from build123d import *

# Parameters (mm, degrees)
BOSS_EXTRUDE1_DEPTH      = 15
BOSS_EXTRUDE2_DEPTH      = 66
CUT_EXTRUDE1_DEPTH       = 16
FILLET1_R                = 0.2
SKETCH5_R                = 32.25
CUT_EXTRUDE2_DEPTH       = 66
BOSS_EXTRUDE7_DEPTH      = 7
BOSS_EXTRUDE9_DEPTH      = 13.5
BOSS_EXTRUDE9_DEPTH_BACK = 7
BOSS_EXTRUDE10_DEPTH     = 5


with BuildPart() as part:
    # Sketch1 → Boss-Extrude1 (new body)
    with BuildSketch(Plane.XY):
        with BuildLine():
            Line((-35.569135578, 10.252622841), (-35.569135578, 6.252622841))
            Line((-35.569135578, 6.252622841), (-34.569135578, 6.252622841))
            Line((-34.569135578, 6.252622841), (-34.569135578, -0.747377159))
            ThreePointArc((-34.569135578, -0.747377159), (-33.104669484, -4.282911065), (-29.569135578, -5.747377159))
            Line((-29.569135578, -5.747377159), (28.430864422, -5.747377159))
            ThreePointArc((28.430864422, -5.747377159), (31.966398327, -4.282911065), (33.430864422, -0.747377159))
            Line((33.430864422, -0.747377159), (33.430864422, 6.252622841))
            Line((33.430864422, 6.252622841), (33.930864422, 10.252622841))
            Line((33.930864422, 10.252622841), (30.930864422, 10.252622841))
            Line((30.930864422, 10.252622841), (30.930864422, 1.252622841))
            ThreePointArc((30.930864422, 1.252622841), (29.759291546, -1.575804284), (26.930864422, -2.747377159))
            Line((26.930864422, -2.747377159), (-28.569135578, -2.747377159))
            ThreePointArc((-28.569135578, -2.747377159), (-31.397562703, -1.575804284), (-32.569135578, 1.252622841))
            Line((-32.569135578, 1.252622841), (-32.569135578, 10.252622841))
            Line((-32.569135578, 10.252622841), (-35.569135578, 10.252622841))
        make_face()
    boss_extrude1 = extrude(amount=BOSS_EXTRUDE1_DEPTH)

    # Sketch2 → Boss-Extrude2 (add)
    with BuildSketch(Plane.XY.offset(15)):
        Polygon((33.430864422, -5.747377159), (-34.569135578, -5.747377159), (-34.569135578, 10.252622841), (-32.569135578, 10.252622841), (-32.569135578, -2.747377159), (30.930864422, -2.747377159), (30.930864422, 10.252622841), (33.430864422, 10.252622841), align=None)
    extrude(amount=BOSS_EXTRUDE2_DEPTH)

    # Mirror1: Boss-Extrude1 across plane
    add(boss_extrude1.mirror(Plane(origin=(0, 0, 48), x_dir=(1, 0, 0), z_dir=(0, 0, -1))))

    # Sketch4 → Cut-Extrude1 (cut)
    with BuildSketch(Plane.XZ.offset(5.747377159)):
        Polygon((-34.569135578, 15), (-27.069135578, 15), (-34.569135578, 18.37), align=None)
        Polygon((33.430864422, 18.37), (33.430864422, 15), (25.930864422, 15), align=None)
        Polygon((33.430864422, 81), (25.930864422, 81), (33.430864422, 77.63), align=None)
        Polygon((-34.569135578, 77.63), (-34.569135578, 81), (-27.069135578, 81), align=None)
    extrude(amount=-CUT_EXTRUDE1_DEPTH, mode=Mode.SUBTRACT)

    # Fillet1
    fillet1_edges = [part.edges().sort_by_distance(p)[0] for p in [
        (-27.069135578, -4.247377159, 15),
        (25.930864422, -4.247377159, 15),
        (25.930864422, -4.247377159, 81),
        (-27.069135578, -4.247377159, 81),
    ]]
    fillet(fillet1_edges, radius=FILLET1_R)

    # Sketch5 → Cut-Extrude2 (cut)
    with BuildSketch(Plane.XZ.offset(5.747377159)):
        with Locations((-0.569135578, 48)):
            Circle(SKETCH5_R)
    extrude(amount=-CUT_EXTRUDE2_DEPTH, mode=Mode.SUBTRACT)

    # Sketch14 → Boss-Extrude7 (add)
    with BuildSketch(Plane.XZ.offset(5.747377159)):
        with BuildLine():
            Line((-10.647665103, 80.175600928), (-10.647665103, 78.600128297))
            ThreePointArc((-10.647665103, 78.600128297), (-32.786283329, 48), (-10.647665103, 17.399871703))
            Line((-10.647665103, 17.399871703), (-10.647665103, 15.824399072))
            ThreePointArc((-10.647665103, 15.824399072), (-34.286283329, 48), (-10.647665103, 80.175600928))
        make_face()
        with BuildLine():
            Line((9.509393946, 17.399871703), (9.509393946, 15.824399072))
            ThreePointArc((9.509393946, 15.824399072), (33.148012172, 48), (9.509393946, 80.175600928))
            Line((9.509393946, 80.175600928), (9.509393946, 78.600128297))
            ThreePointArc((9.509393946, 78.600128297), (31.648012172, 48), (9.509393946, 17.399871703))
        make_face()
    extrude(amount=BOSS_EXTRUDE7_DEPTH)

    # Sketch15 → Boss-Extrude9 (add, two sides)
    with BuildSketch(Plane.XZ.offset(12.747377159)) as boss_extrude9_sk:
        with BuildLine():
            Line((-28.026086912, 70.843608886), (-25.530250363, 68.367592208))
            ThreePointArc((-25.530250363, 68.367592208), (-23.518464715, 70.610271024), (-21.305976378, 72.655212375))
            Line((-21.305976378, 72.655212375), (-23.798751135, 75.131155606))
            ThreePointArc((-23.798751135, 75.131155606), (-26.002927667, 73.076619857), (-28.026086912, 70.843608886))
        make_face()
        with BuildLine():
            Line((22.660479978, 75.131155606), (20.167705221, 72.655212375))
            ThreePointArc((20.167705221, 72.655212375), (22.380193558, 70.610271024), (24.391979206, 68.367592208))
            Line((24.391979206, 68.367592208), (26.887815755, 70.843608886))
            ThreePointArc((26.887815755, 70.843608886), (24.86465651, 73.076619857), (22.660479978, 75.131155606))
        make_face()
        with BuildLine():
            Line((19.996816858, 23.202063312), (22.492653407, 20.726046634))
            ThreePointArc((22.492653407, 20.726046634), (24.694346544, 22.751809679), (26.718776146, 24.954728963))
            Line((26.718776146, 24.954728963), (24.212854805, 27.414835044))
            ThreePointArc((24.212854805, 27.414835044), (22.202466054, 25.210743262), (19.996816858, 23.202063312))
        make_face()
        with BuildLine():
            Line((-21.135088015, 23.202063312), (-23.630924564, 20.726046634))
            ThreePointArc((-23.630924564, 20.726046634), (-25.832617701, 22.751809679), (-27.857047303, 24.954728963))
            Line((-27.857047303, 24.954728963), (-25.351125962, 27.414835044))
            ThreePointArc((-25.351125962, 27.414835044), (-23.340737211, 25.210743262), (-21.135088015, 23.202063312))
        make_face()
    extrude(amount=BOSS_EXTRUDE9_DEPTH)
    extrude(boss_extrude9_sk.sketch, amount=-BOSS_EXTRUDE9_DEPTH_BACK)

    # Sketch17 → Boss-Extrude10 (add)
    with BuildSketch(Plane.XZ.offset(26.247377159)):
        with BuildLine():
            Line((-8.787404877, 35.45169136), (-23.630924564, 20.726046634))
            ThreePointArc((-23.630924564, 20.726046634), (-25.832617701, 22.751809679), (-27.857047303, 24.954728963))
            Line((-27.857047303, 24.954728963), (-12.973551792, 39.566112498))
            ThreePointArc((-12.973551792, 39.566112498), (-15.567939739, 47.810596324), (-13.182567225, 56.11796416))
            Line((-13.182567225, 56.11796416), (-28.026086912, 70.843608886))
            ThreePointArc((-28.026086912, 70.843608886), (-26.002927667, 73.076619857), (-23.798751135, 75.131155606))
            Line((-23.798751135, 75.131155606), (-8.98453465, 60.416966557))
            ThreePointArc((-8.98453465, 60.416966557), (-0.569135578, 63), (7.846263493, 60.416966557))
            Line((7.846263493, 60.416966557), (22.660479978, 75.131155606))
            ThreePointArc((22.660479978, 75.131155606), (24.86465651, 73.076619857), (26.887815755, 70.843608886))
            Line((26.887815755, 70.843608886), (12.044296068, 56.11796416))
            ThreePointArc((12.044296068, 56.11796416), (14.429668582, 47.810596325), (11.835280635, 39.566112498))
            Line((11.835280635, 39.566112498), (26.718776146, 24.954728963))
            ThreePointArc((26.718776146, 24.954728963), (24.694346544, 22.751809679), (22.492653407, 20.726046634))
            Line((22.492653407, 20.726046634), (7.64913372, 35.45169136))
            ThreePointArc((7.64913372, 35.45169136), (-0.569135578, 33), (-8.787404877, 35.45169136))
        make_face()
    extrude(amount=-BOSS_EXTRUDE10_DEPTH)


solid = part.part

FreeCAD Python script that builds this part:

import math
import FreeCAD as App
import Part
import Sketcher
from FreeCAD import Vector
Q = App.Units.Quantity


def edges_at(feature, points):
    """Names of the edges that pass closest to the given points."""
    edges = feature.Shape.Edges
    near = lambda p: min(range(len(edges)), key=lambda i: edges[i].distToShape(Part.Vertex(*p))[0])
    return sorted({f"Edge{near(p) + 1}" for p in points})


def add_polygon(sketch, points):
    """Adds a closed chain of lines whose ends are joined by coincident constraints."""
    first, n = sketch.GeometryCount, len(points)
    for a, b in zip(points, points[1:] + points[:1]):
        sketch.addGeometry(Part.LineSegment(App.Vector(*a, 0), App.Vector(*b, 0)), False)
    for i in range(n):
        sketch.addConstraint(Sketcher.Constraint("Coincident", first + i, 2, first + (i + 1) % n, 1))

doc = App.newDocument("Part")
body = doc.addObject("PartDesign::Body", "Body")

sketch1 = body.newObject("Sketcher::SketchObject", "Sketch")
sketch1.AttachmentSupport = (doc.getObject("XY_Plane"), [""])
sketch1.MapMode = "FlatFace"
sketch1.addGeometry(Part.LineSegment(Vector(-35.6, 10.3, 0), Vector(-35.6, 6.3, 0)), False)
sketch1.addGeometry(Part.LineSegment(Vector(-35.6, 6.3, 0), Vector(-34.6, 6.3, 0)), False)
sketch1.addGeometry(Part.LineSegment(Vector(-34.6, 6.3, 0), Vector(-34.6, -0.7, 0)), False)
sketch1.addGeometry(Part.ArcOfCircle(Part.Circle(Vector(-29.6, -0.7, 0), Vector(0, 0, 1), 5), math.radians(180), math.radians(270)), False)
sketch1.addGeometry(Part.LineSegment(Vector(-29.6, -5.7, 0), Vector(28.4, -5.7, 0)), False)
sketch1.addGeometry(Part.ArcOfCircle(Part.Circle(Vector(28.4, -0.7, 0), Vector(0, 0, 1), 5), math.radians(-90), math.radians(0)), False)
sketch1.addGeometry(Part.LineSegment(Vector(33.4, -0.7, 0), Vector(33.4, 6.3, 0)), False)
sketch1.addGeometry(Part.LineSegment(Vector(33.4, 6.3, 0), Vector(33.9, 10.3, 0)), False)
sketch1.addGeometry(Part.LineSegment(Vector(33.9, 10.3, 0), Vector(30.9, 10.3, 0)), False)
sketch1.addGeometry(Part.LineSegment(Vector(30.9, 10.3, 0), Vector(30.9, 1.3, 0)), False)
sketch1.addGeometry(Part.ArcOfCircle(Part.Circle(Vector(26.9, 1.3, 0), Vector(0, 0, 1), 4), math.radians(-90), math.radians(0)), False)
sketch1.addGeometry(Part.LineSegment(Vector(26.9, -2.7, 0), Vector(-28.6, -2.7, 0)), False)
sketch1.addGeometry(Part.ArcOfCircle(Part.Circle(Vector(-28.6, 1.3, 0), Vector(0, 0, 1), 4), math.radians(180), math.radians(270)), False)
sketch1.addGeometry(Part.LineSegment(Vector(-32.6, 1.3, 0), Vector(-32.6, 10.3, 0)), False)
sketch1.addGeometry(Part.LineSegment(Vector(-32.6, 10.3, 0), Vector(-35.6, 10.3, 0)), False)
sketch1.addConstraint(Sketcher.Constraint("Coincident", 0, 2, 1, 1))
sketch1.addConstraint(Sketcher.Constraint("Coincident", 1, 2, 2, 1))
sketch1.addConstraint(Sketcher.Constraint("Tangent", 2, 2, 3, 1))
sketch1.addConstraint(Sketcher.Constraint("Tangent", 3, 2, 4, 1))
sketch1.addConstraint(Sketcher.Constraint("Tangent", 4, 2, 5, 1))
sketch1.addConstraint(Sketcher.Constraint("Tangent", 5, 2, 6, 1))
sketch1.addConstraint(Sketcher.Constraint("Coincident", 6, 2, 7, 1))
sketch1.addConstraint(Sketcher.Constraint("Coincident", 7, 2, 8, 1))
sketch1.addConstraint(Sketcher.Constraint("Coincident", 8, 2, 9, 1))
sketch1.addConstraint(Sketcher.Constraint("Tangent", 9, 2, 10, 2))
sketch1.addConstraint(Sketcher.Constraint("Tangent", 10, 1, 11, 1))
sketch1.addConstraint(Sketcher.Constraint("Tangent", 11, 2, 12, 2))
sketch1.addConstraint(Sketcher.Constraint("Tangent", 12, 1, 13, 1))
sketch1.addConstraint(Sketcher.Constraint("Coincident", 13, 2, 14, 1))
sketch1.addConstraint(Sketcher.Constraint("Coincident", 14, 2, 0, 1))
sketch1.addConstraint(Sketcher.Constraint("Vertical", 0))
sketch1.addConstraint(Sketcher.Constraint("Horizontal", 1))
sketch1.addConstraint(Sketcher.Constraint("Vertical", 2))
sketch1.addConstraint(Sketcher.Constraint("Horizontal", 4))
sketch1.addConstraint(Sketcher.Constraint("Vertical", 6))
sketch1.addConstraint(Sketcher.Constraint("Horizontal", 8))
sketch1.addConstraint(Sketcher.Constraint("Vertical", 9))
sketch1.addConstraint(Sketcher.Constraint("Horizontal", 11))
sketch1.addConstraint(Sketcher.Constraint("Vertical", 13))
sketch1.addConstraint(Sketcher.Constraint("Horizontal", 14))
sketch1.addConstraint(Sketcher.Constraint("Equal", 3, 5))
sketch1.addConstraint(Sketcher.Constraint("Equal", 10, 12))
sketch1.addConstraint(Sketcher.Constraint("Horizontal", 1, 2, 6, 2))
sketch1.addConstraint(Sketcher.Constraint("Horizontal", 8, 2, 13, 2))
sketch1.addConstraint(Sketcher.Constraint("Equal", 8, 14))
sketch1.addConstraint(Sketcher.Constraint("Radius", 3, Q("5 mm")))
sketch1.addConstraint(Sketcher.Constraint("Radius", 10, Q("4 mm")))
sketch1.addConstraint(Sketcher.Constraint("DistanceX", 1, 1, 1, 2, Q("1 mm")))
sketch1.addConstraint(Sketcher.Constraint("DistanceX", 4, 1, 4, 2, Q("58 mm")))
sketch1.addConstraint(Sketcher.Constraint("DistanceX", 8, 2, 8, 1, Q("3 mm")))
sketch1.addConstraint(Sketcher.Constraint("DistanceY", 0, 2, 0, 1, Q("4 mm")))
sketch1.addConstraint(Sketcher.Constraint("DistanceY", 2, 2, 2, 1, Q("7 mm")))
sketch1.addConstraint(Sketcher.Constraint("DistanceY", 9, 2, 9, 1, Q("9 mm")))
sketch1.addConstraint(Sketcher.Constraint("DistanceX", 11, 2, 11, 1, Q("55.5 mm")))
sketch1.addConstraint(Sketcher.Constraint("DistanceX", 3, 3, -1, 1, Q("29.569136 mm")))
sketch1.addConstraint(Sketcher.Constraint("DistanceY", 3, 3, -1, 1, Q("0.747377 mm")))
pad1 = body.newObject("PartDesign::Pad", "Pad")
pad1.Profile = sketch1
pad1.Length = 15

sketch2 = body.newObject("Sketcher::SketchObject", "Sketch001")
sketch2.AttachmentSupport = (doc.getObject("XY_Plane"), [""])
sketch2.MapMode = "FlatFace"
sketch2.AttachmentOffset = App.Placement(Vector(0, 0, 15), App.Rotation())
add_polygon(sketch2, [(-34.6, -5.7), (33.4, -5.7), (33.4, 10.3), (30.9, 10.3), (30.9, -2.7), (-32.6, -2.7), (-32.6, 10.3), (-34.6, 10.3)])
sketch2.addConstraint(Sketcher.Constraint("Horizontal", 0))
sketch2.addConstraint(Sketcher.Constraint("Vertical", 1))
sketch2.addConstraint(Sketcher.Constraint("Horizontal", 2))
sketch2.addConstraint(Sketcher.Constraint("Vertical", 3))
sketch2.addConstraint(Sketcher.Constraint("Horizontal", 4))
sketch2.addConstraint(Sketcher.Constraint("Vertical", 5))
sketch2.addConstraint(Sketcher.Constraint("Horizontal", 6))
sketch2.addConstraint(Sketcher.Constraint("Vertical", 7))
sketch2.addConstraint(Sketcher.Constraint("Horizontal", 2, 2, 5, 2))
sketch2.addConstraint(Sketcher.Constraint("DistanceX", 0, 1, 0, 2, Q("68 mm")))
sketch2.addConstraint(Sketcher.Constraint("DistanceX", 6, 2, 6, 1, Q("2 mm")))
sketch2.addConstraint(Sketcher.Constraint("DistanceY", 1, 1, 1, 2, Q("16 mm")))
sketch2.addConstraint(Sketcher.Constraint("DistanceY", 3, 2, 3, 1, Q("13 mm")))
sketch2.addConstraint(Sketcher.Constraint("DistanceX", 2, 2, 2, 1, Q("2.5 mm")))
sketch2.addConstraint(Sketcher.Constraint("DistanceX", -1, 1, 0, 2, Q("33.430864 mm")))
sketch2.addConstraint(Sketcher.Constraint("DistanceY", 0, 2, -1, 1, Q("5.747377 mm")))
pad2 = body.newObject("PartDesign::Pad", "Pad001")
pad2.Profile = sketch2
pad2.Length = 66
doc.recompute()

datumplane = body.newObject("PartDesign::Plane", "DatumPlane")
datumplane.AttachmentSupport = (doc.getObject("XY_Plane"), [""])
datumplane.MapMode = "FlatFace"
datumplane.AttachmentOffset = App.Placement(Vector(0, 0, 48), App.Rotation())
mirrored = body.newObject("PartDesign::Mirrored", "Mirrored")
mirrored.Originals = [pad1]
mirrored.MirrorPlane = (datumplane, [""])
body.Tip = mirrored

sketch3 = body.newObject("Sketcher::SketchObject", "Sketch002")
sketch3.AttachmentSupport = (doc.getObject("XZ_Plane"), [""])
sketch3.MapMode = "FlatFace"
sketch3.AttachmentOffset = App.Placement(Vector(0, 0, 5.747377), App.Rotation())
add_polygon(sketch3, [(-34.6, 15), (-27.1, 15), (-34.6, 18.4)])
add_polygon(sketch3, [(33.4, 15), (33.4, 18.4), (25.9, 15)])
add_polygon(sketch3, [(33.4, 81), (25.9, 81), (33.4, 77.6)])
add_polygon(sketch3, [(-34.6, 81), (-34.6, 77.6), (-27.1, 81)])
sketch3.addConstraint(Sketcher.Constraint("Horizontal", 0))
sketch3.addConstraint(Sketcher.Constraint("Vertical", 2))
sketch3.addConstraint(Sketcher.Constraint("Vertical", 3))
sketch3.addConstraint(Sketcher.Constraint("Horizontal", 5))
sketch3.addConstraint(Sketcher.Constraint("Horizontal", 6))
sketch3.addConstraint(Sketcher.Constraint("Vertical", 8))
sketch3.addConstraint(Sketcher.Constraint("Vertical", 9))
sketch3.addConstraint(Sketcher.Constraint("Horizontal", 11))
sketch3.addConstraint(Sketcher.Constraint("Parallel", 1, 7))
sketch3.addConstraint(Sketcher.Constraint("Parallel", 4, 10))
sketch3.addConstraint(Sketcher.Constraint("Horizontal", 1, 2, 3, 2))
sketch3.addConstraint(Sketcher.Constraint("Horizontal", 2, 2, 4, 2))
sketch3.addConstraint(Sketcher.Constraint("Horizontal", 7, 2, 9, 2))
sketch3.addConstraint(Sketcher.Constraint("Horizontal", 8, 2, 10, 2))
sketch3.addConstraint(Sketcher.Constraint("Vertical", 4, 2, 6, 2))
sketch3.addConstraint(Sketcher.Constraint("Vertical", 5, 2, 7, 2))
sketch3.addConstraint(Sketcher.Constraint("Vertical", 2, 2, 9, 2))
sketch3.addConstraint(Sketcher.Constraint("Vertical", 0, 2, 10, 2))
sketch3.addConstraint(Sketcher.Constraint("DistanceX", 0, 1, 0, 2, Q("7.5 mm")))
sketch3.addConstraint(Sketcher.Constraint("DistanceY", -1, 1, 0, 2, Q("15 mm")))
sketch3.addConstraint(Sketcher.Constraint("DistanceY", -1, 1, 6, 2, Q("81 mm")))
sketch3.addConstraint(Sketcher.Constraint("DistanceX", 1, 2, 3, 2, Q("68 mm")))
sketch3.addConstraint(Sketcher.Constraint("DistanceY", 2, 2, 2, 1, Q("3.37 mm")))
sketch3.addConstraint(Sketcher.Constraint("DistanceX", 0, 2, -1, 1, Q("27.069136 mm")))
pocket1 = body.newObject("PartDesign::Pocket", "Pocket")
pocket1.Profile = sketch3
pocket1.Length = 16
doc.recompute()

fillet = body.newObject("PartDesign::Fillet", "Fillet")
fillet.Base = (pocket1, edges_at(pocket1, [
    (-27.069, -4.247, 15),
    (25.931, -4.247, 15),
    (25.931, -4.247, 81),
    (-27.069, -4.247, 81),
]))
fillet.Radius = 0.2

sketch4 = body.newObject("Sketcher::SketchObject", "Sketch003")
sketch4.AttachmentSupport = (doc.getObject("XZ_Plane"), [""])
sketch4.MapMode = "FlatFace"
sketch4.AttachmentOffset = App.Placement(Vector(0, 0, 5.747377), App.Rotation())
sketch4.addGeometry(Part.Circle(Vector(-1, 48, 0), Vector(0, 0, 1), 32), False)
sketch4.addConstraint(Sketcher.Constraint("Diameter", 0, Q("64.5 mm")))
sketch4.addConstraint(Sketcher.Constraint("DistanceY", -1, 1, 0, 3, Q("48 mm")))
sketch4.addConstraint(Sketcher.Constraint("DistanceX", 0, 3, -1, 1, Q("0.569136 mm")))
pocket2 = body.newObject("PartDesign::Pocket", "Pocket001")
pocket2.Profile = sketch4
pocket2.Length = 66

sketch5 = body.newObject("Sketcher::SketchObject", "Sketch004")
sketch5.AttachmentSupport = (doc.getObject("XZ_Plane"), [""])
sketch5.MapMode = "FlatFace"
sketch5.AttachmentOffset = App.Placement(Vector(0, 0, 5.747377), App.Rotation())
sketch5.addGeometry(Part.LineSegment(Vector(-10.6, 78.6, 0), Vector(-10.6, 80.2, 0)), False)
sketch5.addGeometry(Part.ArcOfCircle(Part.Circle(Vector(-0.6, 48, 0), Vector(0, 0, 1), 33.7), math.radians(107), math.radians(253)), False)
sketch5.addGeometry(Part.LineSegment(Vector(-10.6, 15.8, 0), Vector(-10.6, 17.4, 0)), False)
sketch5.addGeometry(Part.ArcOfCircle(Part.Circle(Vector(-0.6, 48, 0), Vector(0, 0, 1), 32.2), math.radians(108), math.radians(252)), False)
sketch5.addGeometry(Part.LineSegment(Vector(9.5, 17.4, 0), Vector(9.5, 15.8, 0)), False)
sketch5.addGeometry(Part.ArcOfCircle(Part.Circle(Vector(-0.6, 48, 0), Vector(0, 0, 1), 33.7), math.radians(-73), math.radians(73)), False)
sketch5.addGeometry(Part.LineSegment(Vector(9.5, 80.2, 0), Vector(9.5, 78.6, 0)), False)
sketch5.addGeometry(Part.ArcOfCircle(Part.Circle(Vector(-0.6, 48, 0), Vector(0, 0, 1), 32.2), math.radians(-72), math.radians(72)), False)
sketch5.addConstraint(Sketcher.Constraint("Coincident", 0, 2, 1, 1))
sketch5.addConstraint(Sketcher.Constraint("Coincident", 1, 2, 2, 1))
sketch5.addConstraint(Sketcher.Constraint("Coincident", 2, 2, 3, 2))
sketch5.addConstraint(Sketcher.Constraint("Coincident", 3, 1, 0, 1))
sketch5.addConstraint(Sketcher.Constraint("Coincident", 4, 2, 5, 1))
sketch5.addConstraint(Sketcher.Constraint("Coincident", 5, 2, 6, 1))
sketch5.addConstraint(Sketcher.Constraint("Coincident", 6, 2, 7, 2))
sketch5.addConstraint(Sketcher.Constraint("Coincident", 7, 1, 4, 1))
sketch5.addConstraint(Sketcher.Constraint("Vertical", 0))
sketch5.addConstraint(Sketcher.Constraint("Vertical", 2))
sketch5.addConstraint(Sketcher.Constraint("Vertical", 4))
sketch5.addConstraint(Sketcher.Constraint("Vertical", 6))
sketch5.addConstraint(Sketcher.Constraint("Coincident", 3, 3, 1, 3))
sketch5.addConstraint(Sketcher.Constraint("Coincident", 5, 3, 1, 3))
sketch5.addConstraint(Sketcher.Constraint("Coincident", 7, 3, 1, 3))
sketch5.addConstraint(Sketcher.Constraint("Equal", 1, 5))
sketch5.addConstraint(Sketcher.Constraint("Equal", 3, 7))
sketch5.addConstraint(Sketcher.Constraint("Horizontal", 1, 2, 4, 2))
sketch5.addConstraint(Sketcher.Constraint("Horizontal", 0, 2, 5, 2))
sketch5.addConstraint(Sketcher.Constraint("Vertical", 0, 2, 1, 2))
sketch5.addConstraint(Sketcher.Constraint("DistanceY", -1, 1, 1, 3, Q("48 mm")))
sketch5.addConstraint(Sketcher.Constraint("Radius", 1, Q("33.717148 mm")))
sketch5.addConstraint(Sketcher.Constraint("Radius", 3, Q("32.217148 mm")))
sketch5.addConstraint(Sketcher.Constraint("DistanceY", -1, 1, 0, 2, Q("80.175601 mm")))
sketch5.addConstraint(Sketcher.Constraint("DistanceX", 1, 3, -1, 1, Q("0.569136 mm")))
pad3 = body.newObject("PartDesign::Pad", "Pad002")
pad3.Profile = sketch5
pad3.Length = 7

sketch6 = body.newObject("Sketcher::SketchObject", "Sketch005")
sketch6.AttachmentSupport = (doc.getObject("XZ_Plane"), [""])
sketch6.MapMode = "FlatFace"
sketch6.AttachmentOffset = App.Placement(Vector(0, 0, 12.747377), App.Rotation())
sketch6.addGeometry(Part.LineSegment(Vector(-28, 70.8, 0), Vector(-25.5, 68.4, 0)), False)
sketch6.addGeometry(Part.ArcOfCircle(Part.Circle(Vector(-0.6, 48, 0), Vector(0, 0, 1), 32.2), math.radians(130.07), math.radians(140.79)), False)
sketch6.addGeometry(Part.LineSegment(Vector(-21.3, 72.7, 0), Vector(-23.8, 75.1, 0)), False)
sketch6.addGeometry(Part.ArcOfCircle(Part.Circle(Vector(-0.6, 48, 0), Vector(0, 0, 1), 35.7), math.radians(130.57), math.radians(140.24)), False)
sketch6.addGeometry(Part.LineSegment(Vector(22.7, 75.1, 0), Vector(20.2, 72.7, 0)), False)
sketch6.addGeometry(Part.ArcOfCircle(Part.Circle(Vector(-0.6, 48, 0), Vector(0, 0, 1), 32.2), math.radians(39.21), math.radians(49.93)), False)
sketch6.addGeometry(Part.LineSegment(Vector(24.4, 68.4, 0), Vector(26.9, 70.8, 0)), False)
sketch6.addGeometry(Part.ArcOfCircle(Part.Circle(Vector(-0.6, 48, 0), Vector(0, 0, 1), 35.7), math.radians(39.76), math.radians(49.43)), False)
sketch6.addGeometry(Part.LineSegment(Vector(20, 23.2, 0), Vector(22.5, 20.7, 0)), False)
sketch6.addGeometry(Part.ArcOfCircle(Part.Circle(Vector(-0.6, 48, 0), Vector(0, 0, 1), 35.7), math.radians(-49.78), math.radians(-40.18)), False)
sketch6.addGeometry(Part.LineSegment(Vector(26.7, 25, 0), Vector(24.2, 27.4, 0)), False)
sketch6.addGeometry(Part.ArcOfCircle(Part.Circle(Vector(-0.6, 48, 0), Vector(0, 0, 1), 32.2), math.radians(-50.33), math.radians(-39.71)), False)
sketch6.addGeometry(Part.LineSegment(Vector(-23.6, 20.7, 0), Vector(-21.1, 23.2, 0)), False)
sketch6.addGeometry(Part.ArcOfCircle(Part.Circle(Vector(-0.6, 48, 0), Vector(0, 0, 1), 32.2), math.radians(-140.29), math.radians(-129.67)), False)
sketch6.addGeometry(Part.LineSegment(Vector(-25.4, 27.4, 0), Vector(-27.9, 25, 0)), False)
sketch6.addGeometry(Part.ArcOfCircle(Part.Circle(Vector(-0.6, 48, 0), Vector(0, 0, 1), 35.7), math.radians(-139.82), math.radians(-130.22)), False)
sketch6.addConstraint(Sketcher.Constraint("Coincident", 0, 2, 1, 2))
sketch6.addConstraint(Sketcher.Constraint("Coincident", 1, 1, 2, 1))
sketch6.addConstraint(Sketcher.Constraint("Coincident", 2, 2, 3, 1))
sketch6.addConstraint(Sketcher.Constraint("Coincident", 3, 2, 0, 1))
sketch6.addConstraint(Sketcher.Constraint("Coincident", 4, 2, 5, 2))
sketch6.addConstraint(Sketcher.Constraint("Coincident", 5, 1, 6, 1))
sketch6.addConstraint(Sketcher.Constraint("Coincident", 6, 2, 7, 1))
sketch6.addConstraint(Sketcher.Constraint("Coincident", 7, 2, 4, 1))
sketch6.addConstraint(Sketcher.Constraint("Coincident", 8, 2, 9, 1))
sketch6.addConstraint(Sketcher.Constraint("Coincident", 9, 2, 10, 1))
sketch6.addConstraint(Sketcher.Constraint("Coincident", 10, 2, 11, 2))
sketch6.addConstraint(Sketcher.Constraint("Coincident", 11, 1, 8, 1))
sketch6.addConstraint(Sketcher.Constraint("Coincident", 12, 2, 13, 2))
sketch6.addConstraint(Sketcher.Constraint("Coincident", 13, 1, 14, 1))
sketch6.addConstraint(Sketcher.Constraint("Coincident", 14, 2, 15, 1))
sketch6.addConstraint(Sketcher.Constraint("Coincident", 15, 2, 12, 1))
sketch6.addConstraint(Sketcher.Constraint("Coincident", 3, 3, 1, 3))
sketch6.addConstraint(Sketcher.Constraint("Coincident", 5, 3, 1, 3))
sketch6.addConstraint(Sketcher.Constraint("Coincident", 7, 3, 1, 3))
sketch6.addConstraint(Sketcher.Constraint("Coincident", 9, 3, 1, 3))
sketch6.addConstraint(Sketcher.Constraint("Coincident", 11, 3, 1, 3))
sketch6.addConstraint(Sketcher.Constraint("Coincident", 13, 3, 1, 3))
sketch6.addConstraint(Sketcher.Constraint("Coincident", 15, 3, 1, 3))
sketch6.addConstraint(Sketcher.Constraint("Equal", 1, 5))
sketch6.addConstraint(Sketcher.Constraint("Equal", 3, 7))
sketch6.addConstraint(Sketcher.Constraint("Equal", 7, 9))
sketch6.addConstraint(Sketcher.Constraint("Equal", 5, 11))
sketch6.addConstraint(Sketcher.Constraint("Equal", 11, 13))
sketch6.addConstraint(Sketcher.Constraint("Equal", 9, 15))
sketch6.addConstraint(Sketcher.Constraint("Parallel", 0, 8))
sketch6.addConstraint(Sketcher.Constraint("Parallel", 6, 12))
sketch6.addConstraint(Sketcher.Constraint("Horizontal", 1, 1, 4, 2))
sketch6.addConstraint(Sketcher.Constraint("Horizontal", 0, 2, 5, 1))
sketch6.addConstraint(Sketcher.Constraint("Horizontal", 3, 2, 6, 2))
sketch6.addConstraint(Sketcher.Constraint("Horizontal", 2, 2, 7, 2))
sketch6.addConstraint(Sketcher.Constraint("Horizontal", 11, 1, 12, 2))
sketch6.addConstraint(Sketcher.Constraint("Horizontal", 10, 2, 13, 1))
sketch6.addConstraint(Sketcher.Constraint("Horizontal", 9, 2, 14, 2))
sketch6.addConstraint(Sketcher.Constraint("Equal", 6, 8))
sketch6.addConstraint(Sketcher.Constraint("DistanceY", -1, 1, 1, 3, Q("48 mm")))
sketch6.addConstraint(Sketcher.Constraint("Radius", 1, Q("32.216394 mm")))
sketch6.addConstraint(Sketcher.Constraint("Radius", 3, Q("35.717148 mm")))
sketch6.addConstraint(Sketcher.Constraint("DistanceX", 0, 2, 2, 2, Q("1.731499 mm")))
sketch6.addConstraint(Sketcher.Constraint("DistanceX", 8, 2, 10, 2, Q("1.720201 mm")))
sketch6.addConstraint(Sketcher.Constraint("Distance", 10, Q("3.511661 mm")))
sketch6.addConstraint(Sketcher.Constraint("DistanceX", 0, 2, -1, 1, Q("25.53025 mm")))
sketch6.addConstraint(Sketcher.Constraint("DistanceY", -1, 1, 3, 2, Q("70.843609 mm")))
sketch6.addConstraint(Sketcher.Constraint("DistanceY", -1, 1, 9, 2, Q("24.954729 mm")))
sketch6.addConstraint(Sketcher.Constraint("DistanceY", 0, 2, 1, 1, Q("4.28762 mm")))
pad4 = body.newObject("PartDesign::Pad", "Pad003")
pad4.Profile = sketch6
pad4.Type = "TwoLengths"
pad4.Length = 13.5
pad4.Length2 = 7

sketch7 = body.newObject("Sketcher::SketchObject", "Sketch006")
sketch7.AttachmentSupport = (doc.getObject("XZ_Plane"), [""])
sketch7.MapMode = "FlatFace"
sketch7.AttachmentOffset = App.Placement(Vector(0, 0, 26.247377), App.Rotation())
sketch7.addGeometry(Part.LineSegment(Vector(-24, 21, 0), Vector(-9, 35, 0)), False)
sketch7.addGeometry(Part.ArcOfCircle(Part.Circle(Vector(-1, 48, 0), Vector(0, 0, 1), 15), math.radians(-123), math.radians(-57)), False)
sketch7.addGeometry(Part.LineSegment(Vector(8, 35, 0), Vector(22, 21, 0)), False)
sketch7.addGeometry(Part.ArcOfCircle(Part.Circle(Vector(-1, 48, 0), Vector(0, 0, 1), 36), math.radians(-49.78), math.radians(-40.18)), False)
sketch7.addGeometry(Part.LineSegment(Vector(27, 25, 0), Vector(12, 40, 0)), False)
sketch7.addGeometry(Part.ArcOfCircle(Part.Circle(Vector(-1, 48, 0), Vector(0, 0, 1), 15), math.radians(-34), math.radians(33)), False)
sketch7.addGeometry(Part.LineSegment(Vector(12, 56, 0), Vector(27, 71, 0)), False)
sketch7.addGeometry(Part.ArcOfCircle(Part.Circle(Vector(-1, 48, 0), Vector(0, 0, 1), 36), math.radians(39.76), math.radians(49.43)), False)
sketch7.addGeometry(Part.LineSegment(Vector(23, 75, 0), Vector(8, 60, 0)), False)
sketch7.addGeometry(Part.ArcOfCircle(Part.Circle(Vector(-1, 48, 0), Vector(0, 0, 1), 15), math.radians(56), math.radians(124)), False)
sketch7.addGeometry(Part.LineSegment(Vector(-9, 60, 0), Vector(-24, 75, 0)), False)
sketch7.addGeometry(Part.ArcOfCircle(Part.Circle(Vector(-1, 48, 0), Vector(0, 0, 1), 36), math.radians(130.57), math.radians(140.24)), False)
sketch7.addGeometry(Part.LineSegment(Vector(-28, 71, 0), Vector(-13, 56, 0)), False)
sketch7.addGeometry(Part.ArcOfCircle(Part.Circle(Vector(-1, 48, 0), Vector(0, 0, 1), 15), math.radians(147), math.radians(214)), False)
sketch7.addGeometry(Part.LineSegment(Vector(-13, 40, 0), Vector(-28, 25, 0)), False)
sketch7.addGeometry(Part.ArcOfCircle(Part.Circle(Vector(-1, 48, 0), Vector(0, 0, 1), 36), math.radians(-139.82), math.radians(-130.22)), False)
sketch7.addConstraint(Sketcher.Constraint("Coincident", 0, 2, 1, 1))
sketch7.addConstraint(Sketcher.Constraint("Coincident", 1, 2, 2, 1))
sketch7.addConstraint(Sketcher.Constraint("Coincident", 2, 2, 3, 1))
sketch7.addConstraint(Sketcher.Constraint("Coincident", 3, 2, 4, 1))
sketch7.addConstraint(Sketcher.Constraint("Coincident", 4, 2, 5, 1))
sketch7.addConstraint(Sketcher.Constraint("Coincident", 5, 2, 6, 1))
sketch7.addConstraint(Sketcher.Constraint("Coincident", 6, 2, 7, 1))
sketch7.addConstraint(Sketcher.Constraint("Coincident", 7, 2, 8, 1))
sketch7.addConstraint(Sketcher.Constraint("Coincident", 8, 2, 9, 1))
sketch7.addConstraint(Sketcher.Constraint("Coincident", 9, 2, 10, 1))
sketch7.addConstraint(Sketcher.Constraint("Coincident", 10, 2, 11, 1))
sketch7.addConstraint(Sketcher.Constraint("Coincident", 11, 2, 12, 1))
sketch7.addConstraint(Sketcher.Constraint("Coincident", 12, 2, 13, 1))
sketch7.addConstraint(Sketcher.Constraint("Coincident", 13, 2, 14, 1))
sketch7.addConstraint(Sketcher.Constraint("Coincident", 14, 2, 15, 1))
sketch7.addConstraint(Sketcher.Constraint("Coincident", 15, 2, 0, 1))
sketch7.addConstraint(Sketcher.Constraint("Coincident", 3, 3, 1, 3))
sketch7.addConstraint(Sketcher.Constraint("Coincident", 5, 3, 1, 3))
sketch7.addConstraint(Sketcher.Constraint("Coincident", 7, 3, 1, 3))
sketch7.addConstraint(Sketcher.Constraint("Coincident", 9, 3, 1, 3))
sketch7.addConstraint(Sketcher.Constraint("Coincident", 11, 3, 1, 3))
sketch7.addConstraint(Sketcher.Constraint("Coincident", 13, 3, 1, 3))
sketch7.addConstraint(Sketcher.Constraint("Coincident", 15, 3, 1, 3))
sketch7.addConstraint(Sketcher.Constraint("Equal", 1, 5))
sketch7.addConstraint(Sketcher.Constraint("Equal", 3, 7))
sketch7.addConstraint(Sketcher.Constraint("Equal", 5, 9))
sketch7.addConstraint(Sketcher.Constraint("Equal", 7, 11))
sketch7.addConstraint(Sketcher.Constraint("Equal", 9, 13))
sketch7.addConstraint(Sketcher.Constraint("Equal", 11, 15))
sketch7.addConstraint(Sketcher.Constraint("Parallel", 0, 6))
sketch7.addConstraint(Sketcher.Constraint("Parallel", 2, 12))
sketch7.addConstraint(Sketcher.Constraint("Horizontal", 0, 2, 1, 2))
sketch7.addConstraint(Sketcher.Constraint("Horizontal", 8, 2, 9, 2))
sketch7.addConstraint(Sketcher.Constraint("Horizontal", 7, 2, 10, 2))
sketch7.addConstraint(Sketcher.Constraint("Horizontal", 6, 2, 11, 2))
sketch7.addConstraint(Sketcher.Constraint("Horizontal", 5, 2, 12, 2))
sketch7.addConstraint(Sketcher.Constraint("Horizontal", 4, 2, 13, 2))
sketch7.addConstraint(Sketcher.Constraint("Horizontal", 3, 2, 14, 2))
sketch7.addConstraint(Sketcher.Constraint("Equal", 2, 6))
sketch7.addConstraint(Sketcher.Constraint("Radius", 1, Q("15 mm")))
sketch7.addConstraint(Sketcher.Constraint("DistanceY", -1, 1, 1, 3, Q("48 mm")))
sketch7.addConstraint(Sketcher.Constraint("Radius", 3, Q("35.717148 mm")))
sketch7.addConstraint(Sketcher.Constraint("DistanceX", 7, 3, 8, 2, Q("8.415399 mm")))
sketch7.addConstraint(Sketcher.Constraint("DistanceY", -1, 1, 0, 2, Q("35.451691 mm")))
sketch7.addConstraint(Sketcher.Constraint("DistanceY", -1, 1, 3, 2, Q("24.954729 mm")))
sketch7.addConstraint(Sketcher.Constraint("DistanceX", -1, 1, 4, 2, Q("11.835281 mm")))
sketch7.addConstraint(Sketcher.Constraint("DistanceY", -1, 1, 6, 2, Q("70.843609 mm")))
sketch7.addConstraint(Sketcher.Constraint("DistanceX", -1, 1, 7, 2, Q("22.66048 mm")))
sketch7.addConstraint(Sketcher.Constraint("DistanceX", 10, 2, -1, 1, Q("23.798751 mm")))
pad5 = body.newObject("PartDesign::Pad", "Pad004")
pad5.Profile = sketch7
pad5.Length = 5
pad5.Reversed = True

doc.recompute()
